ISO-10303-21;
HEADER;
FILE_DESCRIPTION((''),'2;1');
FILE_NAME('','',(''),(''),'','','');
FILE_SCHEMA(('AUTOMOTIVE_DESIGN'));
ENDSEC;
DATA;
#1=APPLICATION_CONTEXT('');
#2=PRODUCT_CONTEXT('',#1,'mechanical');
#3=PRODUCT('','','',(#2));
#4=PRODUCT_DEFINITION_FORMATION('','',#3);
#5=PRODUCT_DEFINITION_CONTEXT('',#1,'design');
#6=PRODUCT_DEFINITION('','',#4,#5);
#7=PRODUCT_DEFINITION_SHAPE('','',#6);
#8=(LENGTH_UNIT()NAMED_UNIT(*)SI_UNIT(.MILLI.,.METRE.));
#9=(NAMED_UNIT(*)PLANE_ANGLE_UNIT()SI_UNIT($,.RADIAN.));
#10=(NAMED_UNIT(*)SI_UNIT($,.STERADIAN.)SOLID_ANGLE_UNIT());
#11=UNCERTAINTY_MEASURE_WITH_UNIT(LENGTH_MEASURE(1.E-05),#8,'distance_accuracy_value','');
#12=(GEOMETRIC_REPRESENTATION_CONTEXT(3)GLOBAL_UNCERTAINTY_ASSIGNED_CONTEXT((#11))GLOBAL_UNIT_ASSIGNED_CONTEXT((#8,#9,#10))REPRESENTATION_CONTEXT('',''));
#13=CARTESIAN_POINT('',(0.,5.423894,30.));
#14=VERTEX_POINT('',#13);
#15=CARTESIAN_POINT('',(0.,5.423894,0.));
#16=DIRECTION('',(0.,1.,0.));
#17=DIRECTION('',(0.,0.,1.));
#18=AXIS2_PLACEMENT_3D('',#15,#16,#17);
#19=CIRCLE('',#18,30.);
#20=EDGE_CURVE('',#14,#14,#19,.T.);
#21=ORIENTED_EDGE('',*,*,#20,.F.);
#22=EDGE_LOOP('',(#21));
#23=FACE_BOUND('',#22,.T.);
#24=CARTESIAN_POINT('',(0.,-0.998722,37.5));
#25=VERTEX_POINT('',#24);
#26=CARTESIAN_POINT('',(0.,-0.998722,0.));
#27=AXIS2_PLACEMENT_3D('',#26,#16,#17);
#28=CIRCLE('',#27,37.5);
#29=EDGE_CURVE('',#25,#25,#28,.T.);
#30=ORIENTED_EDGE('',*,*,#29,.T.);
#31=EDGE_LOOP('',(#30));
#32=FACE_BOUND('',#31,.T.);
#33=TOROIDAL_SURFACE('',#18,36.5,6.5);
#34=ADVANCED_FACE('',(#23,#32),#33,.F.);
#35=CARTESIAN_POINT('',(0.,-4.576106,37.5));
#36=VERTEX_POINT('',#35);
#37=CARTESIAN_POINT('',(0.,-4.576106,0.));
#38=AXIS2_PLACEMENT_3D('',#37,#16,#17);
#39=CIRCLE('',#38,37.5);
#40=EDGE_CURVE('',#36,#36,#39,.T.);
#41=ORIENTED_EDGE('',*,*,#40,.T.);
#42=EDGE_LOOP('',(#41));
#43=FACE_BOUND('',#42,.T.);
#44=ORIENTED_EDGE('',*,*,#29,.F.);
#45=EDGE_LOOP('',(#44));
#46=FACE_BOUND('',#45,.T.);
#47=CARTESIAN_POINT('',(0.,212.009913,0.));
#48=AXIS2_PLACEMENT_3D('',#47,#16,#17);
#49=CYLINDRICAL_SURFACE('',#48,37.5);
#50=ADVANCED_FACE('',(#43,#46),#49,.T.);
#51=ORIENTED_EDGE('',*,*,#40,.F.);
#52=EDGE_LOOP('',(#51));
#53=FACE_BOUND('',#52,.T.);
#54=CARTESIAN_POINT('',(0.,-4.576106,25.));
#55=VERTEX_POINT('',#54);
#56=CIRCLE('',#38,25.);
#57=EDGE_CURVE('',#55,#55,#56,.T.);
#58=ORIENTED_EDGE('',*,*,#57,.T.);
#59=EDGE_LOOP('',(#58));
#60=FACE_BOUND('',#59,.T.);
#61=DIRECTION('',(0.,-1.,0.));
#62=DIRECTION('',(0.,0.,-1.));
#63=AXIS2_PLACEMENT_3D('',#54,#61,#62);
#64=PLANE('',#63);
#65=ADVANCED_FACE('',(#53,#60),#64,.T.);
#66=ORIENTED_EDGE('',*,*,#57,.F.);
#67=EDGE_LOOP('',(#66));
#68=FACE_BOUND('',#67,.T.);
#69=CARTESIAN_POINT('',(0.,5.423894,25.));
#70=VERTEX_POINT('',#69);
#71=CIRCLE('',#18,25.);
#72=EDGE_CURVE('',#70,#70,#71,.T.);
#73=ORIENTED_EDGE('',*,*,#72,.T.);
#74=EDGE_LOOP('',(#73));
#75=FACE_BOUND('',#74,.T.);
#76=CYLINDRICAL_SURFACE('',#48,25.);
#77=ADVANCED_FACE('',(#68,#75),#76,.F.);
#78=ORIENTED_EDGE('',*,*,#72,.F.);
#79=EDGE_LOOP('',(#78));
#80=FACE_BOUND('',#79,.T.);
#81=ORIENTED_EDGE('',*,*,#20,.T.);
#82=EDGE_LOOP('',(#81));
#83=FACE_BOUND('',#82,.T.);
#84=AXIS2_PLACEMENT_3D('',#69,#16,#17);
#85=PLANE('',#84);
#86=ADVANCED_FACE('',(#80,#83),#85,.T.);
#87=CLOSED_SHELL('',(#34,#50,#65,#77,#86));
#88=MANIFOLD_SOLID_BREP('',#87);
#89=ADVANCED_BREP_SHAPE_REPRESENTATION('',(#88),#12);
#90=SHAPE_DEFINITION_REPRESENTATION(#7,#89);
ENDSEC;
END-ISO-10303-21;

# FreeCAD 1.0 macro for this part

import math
import FreeCAD as App
import Part
import Sketcher
from FreeCAD import Vector

doc = App.newDocument("Part")
params = doc.addObject("Spreadsheet::Sheet", "Params")
for row, (alias, value) in enumerate([
    ("sketch1_radius", "6.5 mm"),
    ("sketch1_width", "10 mm"),
    ("sketch1_height", "5 mm"),
    ("sketch1_height2", "12.5 mm"),
    ("revolution_angle", "360 deg"),
], start=1):
    params.set(f"A{row}", alias)
    params.set(f"B{row}", "=" + value)
    params.setAlias(f"B{row}", alias)

body = doc.addObject("PartDesign::Body", "Body")

# Sketch on YZ plane
sketch1 = body.newObject("Sketcher::SketchObject", "Sketch")
sketch1.AttachmentSupport = (doc.getObject("YZ_Plane"), [""])
sketch1.MapMode = "FlatFace"
sketch1.addGeometry([
    Part.LineSegment(Vector(-4.576106, 25, 0), Vector(5.423894, 25, 0)),  # 0
    Part.LineSegment(Vector(5.423894, 25, 0), Vector(5.423894, 30, 0)),  # 1
    Part.ArcOfCircle(Part.Circle(Vector(5.423894, 36.5, 0), Vector(0, 0, 1), 6.5), math.radians(171.150117), math.radians(270)),  # 2
    Part.LineSegment(Vector(-0.998722, 37.5, 0), Vector(-4.576106, 37.5, 0)),  # 3
    Part.LineSegment(Vector(-4.576106, 37.5, 0), Vector(-4.576106, 25, 0)),  # 4
], False)
sketch1.addConstraint([
    Sketcher.Constraint("Coincident", 0, 2, 1, 1),
    Sketcher.Constraint("Coincident", 1, 2, 2, 2),
    Sketcher.Constraint("Coincident", 2, 1, 3, 1),
    Sketcher.Constraint("Coincident", 3, 2, 4, 1),
    Sketcher.Constraint("Coincident", 4, 2, 0, 1),
    Sketcher.Constraint("Horizontal", 0),
    Sketcher.Constraint("Vertical", 1),
    Sketcher.Constraint("Horizontal", 3),
    Sketcher.Constraint("Vertical", 4),
    Sketcher.Constraint("Vertical", 2, 3, 0, 2),
    Sketcher.Constraint("Radius", 2, 6.5),
    Sketcher.Constraint("DistanceX", 0, 1, 0, 2, 10.0),
    Sketcher.Constraint("DistanceY", 1, 1, 1, 2, 5.0),
    Sketcher.Constraint("DistanceY", 4, 2, 4, 1, 12.5),
    Sketcher.Constraint("DistanceY", -1, 1, 0, 2, 25.0),
    Sketcher.Constraint("DistanceX", -1, 1, 2, 3, 5.423894),
])
sketch1.setExpression("Constraints[10]", "Params.sketch1_radius")
sketch1.setExpression("Constraints[11]", "Params.sketch1_width")
sketch1.setExpression("Constraints[12]", "Params.sketch1_height")
sketch1.setExpression("Constraints[13]", "Params.sketch1_height2")
revolution = body.newObject("PartDesign::Revolution", "Revolution")
revolution.Profile = sketch1
revolution.ReferenceAxis = (sketch1, ["H_Axis"])
revolution.setExpression("Angle", "Params.revolution_angle")

doc.recompute()
